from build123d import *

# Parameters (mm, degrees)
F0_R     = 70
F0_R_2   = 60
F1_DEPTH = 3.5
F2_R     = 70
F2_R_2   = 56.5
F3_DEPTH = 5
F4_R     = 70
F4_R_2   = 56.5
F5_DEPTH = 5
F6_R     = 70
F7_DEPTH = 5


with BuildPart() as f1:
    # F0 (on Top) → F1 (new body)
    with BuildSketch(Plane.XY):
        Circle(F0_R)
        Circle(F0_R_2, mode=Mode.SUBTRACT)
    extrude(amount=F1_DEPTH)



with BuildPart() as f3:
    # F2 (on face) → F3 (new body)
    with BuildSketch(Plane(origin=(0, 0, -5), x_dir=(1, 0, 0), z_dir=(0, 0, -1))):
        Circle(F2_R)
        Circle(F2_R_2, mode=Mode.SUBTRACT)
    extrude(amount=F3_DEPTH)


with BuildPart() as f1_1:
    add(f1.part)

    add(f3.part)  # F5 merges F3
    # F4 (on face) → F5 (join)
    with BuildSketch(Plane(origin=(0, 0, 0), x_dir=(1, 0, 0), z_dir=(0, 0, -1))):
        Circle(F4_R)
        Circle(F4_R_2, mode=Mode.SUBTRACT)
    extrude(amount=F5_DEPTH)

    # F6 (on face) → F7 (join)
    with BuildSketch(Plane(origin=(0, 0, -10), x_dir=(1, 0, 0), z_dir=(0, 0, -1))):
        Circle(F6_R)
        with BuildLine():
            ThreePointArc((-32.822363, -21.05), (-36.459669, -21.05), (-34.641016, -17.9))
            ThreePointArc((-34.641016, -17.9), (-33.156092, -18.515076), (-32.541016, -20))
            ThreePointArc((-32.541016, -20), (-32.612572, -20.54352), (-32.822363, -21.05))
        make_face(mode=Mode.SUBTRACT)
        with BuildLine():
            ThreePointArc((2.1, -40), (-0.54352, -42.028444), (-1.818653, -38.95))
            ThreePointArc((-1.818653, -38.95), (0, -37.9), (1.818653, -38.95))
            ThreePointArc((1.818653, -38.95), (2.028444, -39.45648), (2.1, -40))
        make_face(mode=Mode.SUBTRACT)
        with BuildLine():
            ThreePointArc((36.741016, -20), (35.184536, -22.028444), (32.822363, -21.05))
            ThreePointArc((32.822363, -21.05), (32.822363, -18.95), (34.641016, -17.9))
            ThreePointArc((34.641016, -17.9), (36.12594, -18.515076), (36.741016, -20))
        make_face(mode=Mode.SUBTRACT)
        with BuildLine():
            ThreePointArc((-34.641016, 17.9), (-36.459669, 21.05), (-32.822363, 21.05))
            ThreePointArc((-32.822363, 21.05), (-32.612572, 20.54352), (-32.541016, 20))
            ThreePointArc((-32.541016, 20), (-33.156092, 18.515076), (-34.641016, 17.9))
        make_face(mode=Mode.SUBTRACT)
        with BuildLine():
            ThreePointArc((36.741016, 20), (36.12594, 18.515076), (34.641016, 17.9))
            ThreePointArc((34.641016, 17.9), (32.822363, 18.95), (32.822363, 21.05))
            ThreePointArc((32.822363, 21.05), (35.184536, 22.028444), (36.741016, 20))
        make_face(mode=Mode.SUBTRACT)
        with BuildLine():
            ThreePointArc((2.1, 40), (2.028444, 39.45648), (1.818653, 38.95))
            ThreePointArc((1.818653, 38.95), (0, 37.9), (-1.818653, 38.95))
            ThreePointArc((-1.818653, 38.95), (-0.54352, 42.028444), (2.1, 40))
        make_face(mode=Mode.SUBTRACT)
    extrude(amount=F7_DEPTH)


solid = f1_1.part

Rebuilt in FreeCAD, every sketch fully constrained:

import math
import FreeCAD as App
import Part
import Sketcher
from FreeCAD import Vector
Q = App.Units.Quantity

doc = App.newDocument("Part")
body = doc.addObject("PartDesign::Body", "Body")

# Sketch on XY plane
sketch1 = body.newObject("Sketcher::SketchObject", "Sketch")
sketch1.AttachmentSupport = (doc.getObject("XY_Plane"), [""])
sketch1.MapMode = "FlatFace"
sketch1.addGeometry(Part.Circle(Vector(0, 0, 0), Vector(0, 0, 1), 70), False)
sketch1.addGeometry(Part.Circle(Vector(0, 0, 0), Vector(0, 0, 1), 60), False)
sketch1.addConstraint(Sketcher.Constraint("Coincident", 0, 3, -1, 1))
sketch1.addConstraint(Sketcher.Constraint("Coincident", 1, 3, -1, 1))
sketch1.addConstraint(Sketcher.Constraint("Diameter", 0, Q("140 mm")))
sketch1.addConstraint(Sketcher.Constraint("Diameter", 1, Q("120 mm")))
pad1 = body.newObject("PartDesign::Pad", "Pad")
pad1.Profile = sketch1
pad1.Length = 3.5
body2 = doc.addObject("PartDesign::Body", "Body001")

# Sketch on XY plane
sketch2 = body2.newObject("Sketcher::SketchObject", "Sketch001")
sketch2.AttachmentSupport = (doc.getObject("XY_Plane001"), [""])
sketch2.MapMode = "FlatFace"
sketch2.AttachmentOffset = App.Placement(Vector(0, 0, -5), App.Rotation())
sketch2.addGeometry(Part.Circle(Vector(0, 0, 0), Vector(0, 0, 1), 70), False)
sketch2.addGeometry(Part.Circle(Vector(0, 0, 0), Vector(0, 0, 1), 56.5), False)
sketch2.addConstraint(Sketcher.Constraint("Coincident", 0, 3, -1, 1))
sketch2.addConstraint(Sketcher.Constraint("Coincident", 1, 3, -1, 1))
sketch2.addConstraint(Sketcher.Constraint("Diameter", 0, Q("140 mm")))
sketch2.addConstraint(Sketcher.Constraint("Diameter", 1, Q("113 mm")))
pad2 = body2.newObject("PartDesign::Pad", "Pad001")
pad2.Profile = sketch2
pad2.Length = 5
pad2.Reversed = True
body.AllowCompound = True
doc.recompute()

boolean = body.newObject("PartDesign::Boolean", "Boolean")
boolean.Type = "Fuse"
boolean.addObjects([body2])

# Sketch on XY plane
sketch3 = body.newObject("Sketcher::SketchObject", "Sketch002")
sketch3.AttachmentSupport = (doc.getObject("XY_Plane"), [""])
sketch3.MapMode = "FlatFace"
sketch3.addGeometry(Part.Circle(Vector(0, 0, 0), Vector(0, 0, 1), 70), False)
sketch3.addGeometry(Part.Circle(Vector(0, 0, 0), Vector(0, 0, 1), 56.5), False)
sketch3.addConstraint(Sketcher.Constraint("Coincident", 0, 3, -1, 1))
sketch3.addConstraint(Sketcher.Constraint("Coincident", 1, 3, -1, 1))
sketch3.addConstraint(Sketcher.Constraint("Diameter", 0, Q("140 mm")))
sketch3.addConstraint(Sketcher.Constraint("Diameter", 1, Q("113 mm")))
pad3 = body.newObject("PartDesign::Pad", "Pad002")
pad3.Profile = sketch3
pad3.Length = 5
pad3.Reversed = True

# Sketch on XY plane
sketch4 = body.newObject("Sketcher::SketchObject", "Sketch003")
sketch4.AttachmentSupport = (doc.getObject("XY_Plane"), [""])
sketch4.MapMode = "FlatFace"
sketch4.AttachmentOffset = App.Placement(Vector(0, 0, -10), App.Rotation())
sketch4.addGeometry(Part.Circle(Vector(0, 0, 0), Vector(0, 0, 1), 70), False)
sketch4.addGeometry(Part.ArcOfCircle(Part.Circle(Vector(-34.641018, 19.999999, 0), Vector(0, 0, 1), 2.100002), math.radians(0.000031), math.radians(30.000005)), False)
sketch4.addGeometry(Part.ArcOfCircle(Part.Circle(Vector(-34.641016, 20, 0), Vector(0, 0, 1), 2.1), math.radians(30.000009), math.radians(270)), False)
sketch4.addGeometry(Part.ArcOfCircle(Part.Circle(Vector(-34.641017, 20.000001, 0), Vector(0, 0, 1), 2.100001), math.radians(-89.999978), math.radians(-0.000022)), False)
sketch4.addGeometry(Part.ArcOfCircle(Part.Circle(Vector(-0.000002, 40.000001, 0), Vector(0, 0, 1), 2.100002), math.radians(-30.000005), math.radians(-0.000031)), False)
sketch4.addGeometry(Part.ArcOfCircle(Part.Circle(Vector(0, 40, 0), Vector(0, 0, 1), 2.1), math.radians(0), math.radians(210.000002)), False)
sketch4.addGeometry(Part.ArcOfCircle(Part.Circle(Vector(0, 39.999999, 0), Vector(0, 0, 1), 2.099999), math.radians(-150.00001), math.radians(-29.99999)), False)
sketch4.addGeometry(Part.ArcOfCircle(Part.Circle(Vector(34.641015, 20.000001, 0), Vector(0, 0, 1), 2.100001), math.radians(-89.999978), math.radians(-0.000022)), False)
sketch4.addGeometry(Part.ArcOfCircle(Part.Circle(Vector(34.641016, 20, 0), Vector(0, 0, 1), 2.1), math.radians(0.000004), math.radians(149.999994)), False)
sketch4.addGeometry(Part.ArcOfCircle(Part.Circle(Vector(34.641016, 20, 0), Vector(0, 0, 1), 2.1), math.radians(150), math.radians(269.999991)), False)
sketch4.addGeometry(Part.ArcOfCircle(Part.Circle(Vector(-34.641017, -20.000001, 0), Vector(0, 0, 1), 2.100001), math.radians(0.000022), math.radians(89.999978)), False)
sketch4.addGeometry(Part.ArcOfCircle(Part.Circle(Vector(-34.641016, -20, 0), Vector(0, 0, 1), 2.1), math.radians(90), math.radians(329.999991)), False)
sketch4.addGeometry(Part.ArcOfCircle(Part.Circle(Vector(-34.641018, -19.999999, 0), Vector(0, 0, 1), 2.100002), math.radians(-30.000005), math.radians(-0.000031)), False)
sketch4.addGeometry(Part.ArcOfCircle(Part.Circle(Vector(34.641016, -20, 0), Vector(0, 0, 1), 2.1), math.radians(-149.999994), math.radians(-0.000004)), False)
sketch4.addGeometry(Part.ArcOfCircle(Part.Circle(Vector(34.641015, -20.000001, 0), Vector(0, 0, 1), 2.100001), math.radians(0.000022), math.radians(89.999978)), False)
sketch4.addGeometry(Part.ArcOfCircle(Part.Circle(Vector(34.641016, -20, 0), Vector(0, 0, 1), 2.1), math.radians(90.000009), math.radians(210)), False)
sketch4.addGeometry(Part.ArcOfCircle(Part.Circle(Vector(0, -40, 0), Vector(0, 0, 1), 2.1), math.radians(149.999998), math.radians(360)), False)
sketch4.addGeometry(Part.ArcOfCircle(Part.Circle(Vector(-0.000002, -40.000001, 0), Vector(0, 0, 1), 2.100002), math.radians(0.000031), math.radians(30.000005)), False)
sketch4.addGeometry(Part.ArcOfCircle(Part.Circle(Vector(0, -39.999999, 0), Vector(0, 0, 1), 2.099999), math.radians(29.99999), math.radians(150.00001)), False)
sketch4.addConstraint(Sketcher.Constraint("Tangent", 1, 2, 2, 1))
sketch4.addConstraint(Sketcher.Constraint("Tangent", 2, 2, 3, 1))
sketch4.addConstraint(Sketcher.Constraint("Tangent", 3, 2, 1, 1))
sketch4.addConstraint(Sketcher.Constraint("Tangent", 4, 2, 5, 1))
sketch4.addConstraint(Sketcher.Constraint("Tangent", 5, 2, 6, 1))
sketch4.addConstraint(Sketcher.Constraint("Tangent", 6, 2, 4, 1))
sketch4.addConstraint(Sketcher.Constraint("Tangent", 7, 2, 8, 1))
sketch4.addConstraint(Sketcher.Constraint("Tangent", 8, 2, 9, 1))
sketch4.addConstraint(Sketcher.Constraint("Tangent", 9, 2, 7, 1))
sketch4.addConstraint(Sketcher.Constraint("Tangent", 10, 2, 11, 1))
sketch4.addConstraint(Sketcher.Constraint("Tangent", 11, 2, 12, 1))
sketch4.addConstraint(Sketcher.Constraint("Tangent", 12, 2, 10, 1))
sketch4.addConstraint(Sketcher.Constraint("Tangent", 13, 2, 14, 1))
sketch4.addConstraint(Sketcher.Constraint("Tangent", 14, 2, 15, 1))
sketch4.addConstraint(Sketcher.Constraint("Tangent", 15, 2, 13, 1))
sketch4.addConstraint(Sketcher.Constraint("Tangent", 16, 2, 17, 1))
sketch4.addConstraint(Sketcher.Constraint("Tangent", 17, 2, 18, 1))
sketch4.addConstraint(Sketcher.Constraint("Tangent", 18, 2, 16, 1))
sketch4.addConstraint(Sketcher.Constraint("Coincident", 0, 3, -1, 1))
sketch4.addConstraint(Sketcher.Constraint("Equal", 3, 4))
sketch4.addConstraint(Sketcher.Constraint("Equal", 6, 7))
sketch4.addConstraint(Sketcher.Constraint("Equal", 9, 10))
sketch4.addConstraint(Sketcher.Constraint("Equal", 11, 13))
sketch4.addConstraint(Sketcher.Constraint("Equal", 15, 16))
sketch4.addConstraint(Sketcher.Constraint("Symmetric", 7, 3, 10, 3, -1, 1))
sketch4.addConstraint(Sketcher.Constraint("Symmetric", 1, 3, 13, 3, -1, 1))
sketch4.addConstraint(Sketcher.Constraint("Symmetric", 4, 3, 16, 3, -1, 1))
sketch4.addConstraint(Sketcher.Constraint("Symmetric", 1, 3, 7, 3, -2))
sketch4.addConstraint(Sketcher.Constraint("Symmetric", 5, 2, 6, 2, -2))
sketch4.addConstraint(Sketcher.Constraint("Horizontal", 9, 3, 3, 2))
sketch4.addConstraint(Sketcher.Constraint("Horizontal", 6, 3, 4, 2))
sketch4.addConstraint(Sketcher.Constraint("Horizontal", 3, 2, 7, 2))
sketch4.addConstraint(Sketcher.Constraint("Horizontal", 1, 2, 8, 2))
sketch4.addConstraint(Sketcher.Constraint("Horizontal", 15, 3, 12, 2))
sketch4.addConstraint(Sketcher.Constraint("Horizontal", 12, 2, 13, 2))
sketch4.addConstraint(Sketcher.Constraint("Horizontal", 11, 2, 15, 2))
sketch4.addConstraint(Sketcher.Constraint("Horizontal", 18, 3, 16, 2))
sketch4.addConstraint(Sketcher.Constraint("Horizontal", 17, 2, 18, 2))
sketch4.addConstraint(Sketcher.Constraint("Vertical", 12, 3, 2, 2))
sketch4.addConstraint(Sketcher.Constraint("Vertical", 15, 3, 9, 2))
sketch4.addConstraint(Sketcher.Constraint("Vertical", 2, 2, 10, 2))
sketch4.addConstraint(Sketcher.Constraint("Vertical", 1, 2, 11, 2))
sketch4.addConstraint(Sketcher.Constraint("Vertical", 9, 2, 14, 2))
sketch4.addConstraint(Sketcher.Constraint("Vertical", 6, 2, 17, 2))
sketch4.addConstraint(Sketcher.Constraint("Diameter", 0, Q("140 mm")))
sketch4.addConstraint(Sketcher.Constraint("Radius", 1, Q("2.100002 mm")))
sketch4.addConstraint(Sketcher.Constraint("DistanceY", -1, 1, 1, 3, Q("19.999999 mm")))
sketch4.addConstraint(Sketcher.Constraint("DistanceY", -1, 1, 4, 3, Q("40.000001 mm")))
sketch4.addConstraint(Sketcher.Constraint("DistanceY", 1, 2, 5, 2, Q("17.9 mm")))
sketch4.addConstraint(Sketcher.Constraint("DistanceY", -1, 1, 1, 2, Q("21.05 mm")))
sketch4.addConstraint(Sketcher.Constraint("DistanceX", 1, 3, 5, 3, Q("34.641018 mm")))
pad4 = body.newObject("PartDesign::Pad", "Pad003")
pad4.Profile = sketch4
pad4.Length = 5
pad4.Reversed = True

doc.recompute()
